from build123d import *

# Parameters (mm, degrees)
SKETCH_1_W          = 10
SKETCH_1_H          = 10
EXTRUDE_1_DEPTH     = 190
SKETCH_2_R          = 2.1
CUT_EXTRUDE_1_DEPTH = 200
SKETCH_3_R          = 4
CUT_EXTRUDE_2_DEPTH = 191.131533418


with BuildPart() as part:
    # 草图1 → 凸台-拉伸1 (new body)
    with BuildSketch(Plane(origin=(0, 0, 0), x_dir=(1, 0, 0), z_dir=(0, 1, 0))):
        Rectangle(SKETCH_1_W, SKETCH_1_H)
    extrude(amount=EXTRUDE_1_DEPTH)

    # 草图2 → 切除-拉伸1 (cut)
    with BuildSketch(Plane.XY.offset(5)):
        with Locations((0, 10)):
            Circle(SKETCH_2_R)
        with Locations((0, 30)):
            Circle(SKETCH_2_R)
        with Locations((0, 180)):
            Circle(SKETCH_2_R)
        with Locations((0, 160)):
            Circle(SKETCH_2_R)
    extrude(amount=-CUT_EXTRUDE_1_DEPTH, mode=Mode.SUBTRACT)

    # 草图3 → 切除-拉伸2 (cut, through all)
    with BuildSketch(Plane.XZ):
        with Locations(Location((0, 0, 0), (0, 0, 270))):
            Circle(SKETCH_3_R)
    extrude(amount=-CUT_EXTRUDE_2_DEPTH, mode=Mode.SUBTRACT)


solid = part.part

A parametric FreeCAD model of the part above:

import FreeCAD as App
import Part
import Sketcher

V = App.Vector
Q = App.Units.Quantity

doc = App.newDocument("Part")
body = doc.addObject("PartDesign::Body", "Body")

sketch1 = doc.addObject("Sketcher::SketchObject", "Sketch")
body.addObject(sketch1)
sketch1.AttachmentSupport = (doc.XZ_Plane, [""])
sketch1.MapMode = "FlatFace"
sketch1.addGeometry(Part.LineSegment(V(-5, -5, 0), V(-5, 5, 0)), False)
sketch1.addGeometry(Part.LineSegment(V(-5, 5, 0), V(5, 5, 0)), False)
sketch1.addGeometry(Part.LineSegment(V(5, 5, 0), V(5, -5, 0)), False)
sketch1.addGeometry(Part.LineSegment(V(5, -5, 0), V(-5, -5, 0)), False)
sketch1.addConstraint(Sketcher.Constraint("Coincident", 0, 2, 1, 1))
sketch1.addConstraint(Sketcher.Constraint("Coincident", 1, 2, 2, 1))
sketch1.addConstraint(Sketcher.Constraint("Coincident", 2, 2, 3, 1))
sketch1.addConstraint(Sketcher.Constraint("Coincident", 3, 2, 0, 1))
sketch1.addConstraint(Sketcher.Constraint("Vertical", 0))
sketch1.addConstraint(Sketcher.Constraint("Horizontal", 1))
sketch1.addConstraint(Sketcher.Constraint("Vertical", 2))
sketch1.addConstraint(Sketcher.Constraint("Horizontal", 3))
sketch1.addConstraint(Sketcher.Constraint("Symmetric", 0, 2, 2, 2, -1, 1))
sketch1.addConstraint(Sketcher.Constraint("Equal", 3, 0))
sketch1.addConstraint(Sketcher.Constraint("DistanceX", 1, 1, 1, 2, Q("10 mm")))
pad1 = doc.addObject("PartDesign::Pad", "Pad")
body.addObject(pad1)
pad1.Profile = sketch1
pad1.Length = 190
pad1.Reversed = True

sketch2 = doc.addObject("Sketcher::SketchObject", "Sketch001")
body.addObject(sketch2)
sketch2.AttachmentSupport = (doc.XY_Plane, [""])
sketch2.MapMode = "FlatFace"
sketch2.AttachmentOffset = App.Placement(V(0, 0, 5), App.Rotation())
sketch2.addGeometry(Part.Circle(V(0, 10, 0), V(0, 0, 1), 2.1), False)
sketch2.addGeometry(Part.Circle(V(0, 30, 0), V(0, 0, 1), 2.1), False)
sketch2.addGeometry(Part.Circle(V(0, 180, 0), V(0, 0, 1), 2.1), False)
sketch2.addGeometry(Part.Circle(V(0, 160, 0), V(0, 0, 1), 2.1), False)
sketch2.addConstraint(Sketcher.Constraint("Equal", 0, 1))
sketch2.addConstraint(Sketcher.Constraint("Equal", 1, 2))
sketch2.addConstraint(Sketcher.Constraint("Equal", 2, 3))
sketch2.addConstraint(Sketcher.Constraint("PointOnObject", 0, 3, -2))
sketch2.addConstraint(Sketcher.Constraint("PointOnObject", 1, 3, -2))
sketch2.addConstraint(Sketcher.Constraint("PointOnObject", 2, 3, -2))
sketch2.addConstraint(Sketcher.Constraint("PointOnObject", 3, 3, -2))
sketch2.addConstraint(Sketcher.Constraint("Diameter", 0, Q("4.2 mm")))
sketch2.addConstraint(Sketcher.Constraint("DistanceY", -1, 1, 0, 3, Q("10 mm")))
sketch2.addConstraint(Sketcher.Constraint("DistanceY", -1, 1, 1, 3, Q("30 mm")))
sketch2.addConstraint(Sketcher.Constraint("DistanceY", -1, 1, 2, 3, Q("180 mm")))
sketch2.addConstraint(Sketcher.Constraint("DistanceY", -1, 1, 3, 3, Q("160 mm")))
pocket1 = doc.addObject("PartDesign::Pocket", "Pocket")
body.addObject(pocket1)
pocket1.Profile = sketch2
pocket1.Length = 200

sketch3 = doc.addObject("Sketcher::SketchObject", "Sketch002")
body.addObject(sketch3)
sketch3.AttachmentSupport = (doc.XZ_Plane, [""])
sketch3.MapMode = "FlatFace"
sketch3.addGeometry(Part.Circle(V(0, 0, 0), V(0, 0, 1), 4), False)
sketch3.addConstraint(Sketcher.Constraint("Coincident", 0, 3, -1, 1))
sketch3.addConstraint(Sketcher.Constraint("Diameter", 0, Q("8 mm")))
pocket2 = doc.addObject("PartDesign::Pocket", "Pocket001")
body.addObject(pocket2)
pocket2.Profile = sketch3
pocket2.Type = "ThroughAll"

doc.recompute()
